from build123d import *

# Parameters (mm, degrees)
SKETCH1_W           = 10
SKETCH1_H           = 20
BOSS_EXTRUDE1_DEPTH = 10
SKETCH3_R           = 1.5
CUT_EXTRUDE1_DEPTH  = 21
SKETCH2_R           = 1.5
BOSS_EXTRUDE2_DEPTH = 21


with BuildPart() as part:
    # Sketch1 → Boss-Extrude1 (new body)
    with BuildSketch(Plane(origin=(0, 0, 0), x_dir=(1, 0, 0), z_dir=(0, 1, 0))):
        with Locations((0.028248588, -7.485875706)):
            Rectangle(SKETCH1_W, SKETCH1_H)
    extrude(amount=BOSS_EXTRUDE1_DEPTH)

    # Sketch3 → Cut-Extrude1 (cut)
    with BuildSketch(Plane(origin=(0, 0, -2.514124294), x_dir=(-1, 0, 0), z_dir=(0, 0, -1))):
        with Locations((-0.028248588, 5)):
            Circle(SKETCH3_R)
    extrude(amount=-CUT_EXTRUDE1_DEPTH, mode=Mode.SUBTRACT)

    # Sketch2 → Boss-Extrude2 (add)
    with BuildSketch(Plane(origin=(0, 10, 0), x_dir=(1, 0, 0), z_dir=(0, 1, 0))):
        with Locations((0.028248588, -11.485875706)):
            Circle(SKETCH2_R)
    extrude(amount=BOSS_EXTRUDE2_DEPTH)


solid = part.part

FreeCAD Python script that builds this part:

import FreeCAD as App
import Part
import Sketcher


def add_polygon(sketch, points):
    """Adds a closed chain of lines whose ends are joined by coincident constraints."""
    first, n = sketch.GeometryCount, len(points)
    for a, b in zip(points, points[1:] + points[:1]):
        sketch.addGeometry(Part.LineSegment(App.Vector(*a, 0), App.Vector(*b, 0)), False)
    for i in range(n):
        sketch.addConstraint(Sketcher.Constraint("Coincident", first + i, 2, first + (i + 1) % n, 1))

doc = App.newDocument("Part")
body = doc.addObject("PartDesign::Body", "Body")

# Sketch on XZ plane
sketch1 = body.newObject("Sketcher::SketchObject", "Sketch")
sketch1.AttachmentSupport = (doc.getObject("XZ_Plane"), [""])
sketch1.MapMode = "FlatFace"
add_polygon(sketch1, [(-4.971751, -2.514124), (-4.971751, 17.485876), (5.028249, 17.485876), (5.028249, -2.514124)])  # lines 0-3
sketch1.addConstraint([
    Sketcher.Constraint("Vertical", 0),
    Sketcher.Constraint("Horizontal", 1),
    Sketcher.Constraint("Vertical", 2),
    Sketcher.Constraint("Horizontal", 3),
    Sketcher.Constraint("DistanceX", 1, 1, 1, 2, 10.0),
    Sketcher.Constraint("DistanceY", 0, 1, 0, 2, 20.0),
    Sketcher.Constraint("DistanceX", 0, 2, -1, 1, 4.971751),
    Sketcher.Constraint("DistanceY", -1, 1, 0, 2, 17.485876),
])
pad1 = body.newObject("PartDesign::Pad", "Pad")
pad1.Profile = sketch1
pad1.Length = 10
pad1.Reversed = True

# Sketch on XY plane
sketch2 = body.newObject("Sketcher::SketchObject", "Sketch001")
sketch2.AttachmentSupport = (doc.getObject("XY_Plane"), [""])
sketch2.MapMode = "FlatFace"
sketch2.AttachmentOffset = App.Placement(App.Vector(0, 0, -2.514124), App.Rotation())
sketch2.addGeometry(Part.Circle(App.Vector(0.028249, 5, 0), App.Vector(0, 0, 1), 1.5), False)
sketch2.addConstraint([
    Sketcher.Constraint("Diameter", 0, 3.0),
    Sketcher.Constraint("DistanceY", -1, 1, 0, 3, 5.0),
    Sketcher.Constraint("DistanceX", -1, 1, 0, 3, 0.028249),
])
pocket1 = body.newObject("PartDesign::Pocket", "Pocket")
pocket1.Profile = sketch2
pocket1.Length = 21
pocket1.Reversed = True

# Sketch on XZ plane
sketch3 = body.newObject("Sketcher::SketchObject", "Sketch002")
sketch3.AttachmentSupport = (doc.getObject("XZ_Plane"), [""])
sketch3.MapMode = "FlatFace"
sketch3.AttachmentOffset = App.Placement(App.Vector(0, 0, -10), App.Rotation())
sketch3.addGeometry(Part.Circle(App.Vector(0.028249, 11.485876, 0), App.Vector(0, 0, 1), 1.5), False)
sketch3.addConstraint([
    Sketcher.Constraint("Diameter", 0, 3.0),
    Sketcher.Constraint("DistanceX", -1, 1, 0, 3, 0.028249),
    Sketcher.Constraint("DistanceY", -1, 1, 0, 3, 11.485876),
])
pad2 = body.newObject("PartDesign::Pad", "Pad001")
pad2.Profile = sketch3
pad2.Length = 21
pad2.Reversed = True

doc.recompute()
